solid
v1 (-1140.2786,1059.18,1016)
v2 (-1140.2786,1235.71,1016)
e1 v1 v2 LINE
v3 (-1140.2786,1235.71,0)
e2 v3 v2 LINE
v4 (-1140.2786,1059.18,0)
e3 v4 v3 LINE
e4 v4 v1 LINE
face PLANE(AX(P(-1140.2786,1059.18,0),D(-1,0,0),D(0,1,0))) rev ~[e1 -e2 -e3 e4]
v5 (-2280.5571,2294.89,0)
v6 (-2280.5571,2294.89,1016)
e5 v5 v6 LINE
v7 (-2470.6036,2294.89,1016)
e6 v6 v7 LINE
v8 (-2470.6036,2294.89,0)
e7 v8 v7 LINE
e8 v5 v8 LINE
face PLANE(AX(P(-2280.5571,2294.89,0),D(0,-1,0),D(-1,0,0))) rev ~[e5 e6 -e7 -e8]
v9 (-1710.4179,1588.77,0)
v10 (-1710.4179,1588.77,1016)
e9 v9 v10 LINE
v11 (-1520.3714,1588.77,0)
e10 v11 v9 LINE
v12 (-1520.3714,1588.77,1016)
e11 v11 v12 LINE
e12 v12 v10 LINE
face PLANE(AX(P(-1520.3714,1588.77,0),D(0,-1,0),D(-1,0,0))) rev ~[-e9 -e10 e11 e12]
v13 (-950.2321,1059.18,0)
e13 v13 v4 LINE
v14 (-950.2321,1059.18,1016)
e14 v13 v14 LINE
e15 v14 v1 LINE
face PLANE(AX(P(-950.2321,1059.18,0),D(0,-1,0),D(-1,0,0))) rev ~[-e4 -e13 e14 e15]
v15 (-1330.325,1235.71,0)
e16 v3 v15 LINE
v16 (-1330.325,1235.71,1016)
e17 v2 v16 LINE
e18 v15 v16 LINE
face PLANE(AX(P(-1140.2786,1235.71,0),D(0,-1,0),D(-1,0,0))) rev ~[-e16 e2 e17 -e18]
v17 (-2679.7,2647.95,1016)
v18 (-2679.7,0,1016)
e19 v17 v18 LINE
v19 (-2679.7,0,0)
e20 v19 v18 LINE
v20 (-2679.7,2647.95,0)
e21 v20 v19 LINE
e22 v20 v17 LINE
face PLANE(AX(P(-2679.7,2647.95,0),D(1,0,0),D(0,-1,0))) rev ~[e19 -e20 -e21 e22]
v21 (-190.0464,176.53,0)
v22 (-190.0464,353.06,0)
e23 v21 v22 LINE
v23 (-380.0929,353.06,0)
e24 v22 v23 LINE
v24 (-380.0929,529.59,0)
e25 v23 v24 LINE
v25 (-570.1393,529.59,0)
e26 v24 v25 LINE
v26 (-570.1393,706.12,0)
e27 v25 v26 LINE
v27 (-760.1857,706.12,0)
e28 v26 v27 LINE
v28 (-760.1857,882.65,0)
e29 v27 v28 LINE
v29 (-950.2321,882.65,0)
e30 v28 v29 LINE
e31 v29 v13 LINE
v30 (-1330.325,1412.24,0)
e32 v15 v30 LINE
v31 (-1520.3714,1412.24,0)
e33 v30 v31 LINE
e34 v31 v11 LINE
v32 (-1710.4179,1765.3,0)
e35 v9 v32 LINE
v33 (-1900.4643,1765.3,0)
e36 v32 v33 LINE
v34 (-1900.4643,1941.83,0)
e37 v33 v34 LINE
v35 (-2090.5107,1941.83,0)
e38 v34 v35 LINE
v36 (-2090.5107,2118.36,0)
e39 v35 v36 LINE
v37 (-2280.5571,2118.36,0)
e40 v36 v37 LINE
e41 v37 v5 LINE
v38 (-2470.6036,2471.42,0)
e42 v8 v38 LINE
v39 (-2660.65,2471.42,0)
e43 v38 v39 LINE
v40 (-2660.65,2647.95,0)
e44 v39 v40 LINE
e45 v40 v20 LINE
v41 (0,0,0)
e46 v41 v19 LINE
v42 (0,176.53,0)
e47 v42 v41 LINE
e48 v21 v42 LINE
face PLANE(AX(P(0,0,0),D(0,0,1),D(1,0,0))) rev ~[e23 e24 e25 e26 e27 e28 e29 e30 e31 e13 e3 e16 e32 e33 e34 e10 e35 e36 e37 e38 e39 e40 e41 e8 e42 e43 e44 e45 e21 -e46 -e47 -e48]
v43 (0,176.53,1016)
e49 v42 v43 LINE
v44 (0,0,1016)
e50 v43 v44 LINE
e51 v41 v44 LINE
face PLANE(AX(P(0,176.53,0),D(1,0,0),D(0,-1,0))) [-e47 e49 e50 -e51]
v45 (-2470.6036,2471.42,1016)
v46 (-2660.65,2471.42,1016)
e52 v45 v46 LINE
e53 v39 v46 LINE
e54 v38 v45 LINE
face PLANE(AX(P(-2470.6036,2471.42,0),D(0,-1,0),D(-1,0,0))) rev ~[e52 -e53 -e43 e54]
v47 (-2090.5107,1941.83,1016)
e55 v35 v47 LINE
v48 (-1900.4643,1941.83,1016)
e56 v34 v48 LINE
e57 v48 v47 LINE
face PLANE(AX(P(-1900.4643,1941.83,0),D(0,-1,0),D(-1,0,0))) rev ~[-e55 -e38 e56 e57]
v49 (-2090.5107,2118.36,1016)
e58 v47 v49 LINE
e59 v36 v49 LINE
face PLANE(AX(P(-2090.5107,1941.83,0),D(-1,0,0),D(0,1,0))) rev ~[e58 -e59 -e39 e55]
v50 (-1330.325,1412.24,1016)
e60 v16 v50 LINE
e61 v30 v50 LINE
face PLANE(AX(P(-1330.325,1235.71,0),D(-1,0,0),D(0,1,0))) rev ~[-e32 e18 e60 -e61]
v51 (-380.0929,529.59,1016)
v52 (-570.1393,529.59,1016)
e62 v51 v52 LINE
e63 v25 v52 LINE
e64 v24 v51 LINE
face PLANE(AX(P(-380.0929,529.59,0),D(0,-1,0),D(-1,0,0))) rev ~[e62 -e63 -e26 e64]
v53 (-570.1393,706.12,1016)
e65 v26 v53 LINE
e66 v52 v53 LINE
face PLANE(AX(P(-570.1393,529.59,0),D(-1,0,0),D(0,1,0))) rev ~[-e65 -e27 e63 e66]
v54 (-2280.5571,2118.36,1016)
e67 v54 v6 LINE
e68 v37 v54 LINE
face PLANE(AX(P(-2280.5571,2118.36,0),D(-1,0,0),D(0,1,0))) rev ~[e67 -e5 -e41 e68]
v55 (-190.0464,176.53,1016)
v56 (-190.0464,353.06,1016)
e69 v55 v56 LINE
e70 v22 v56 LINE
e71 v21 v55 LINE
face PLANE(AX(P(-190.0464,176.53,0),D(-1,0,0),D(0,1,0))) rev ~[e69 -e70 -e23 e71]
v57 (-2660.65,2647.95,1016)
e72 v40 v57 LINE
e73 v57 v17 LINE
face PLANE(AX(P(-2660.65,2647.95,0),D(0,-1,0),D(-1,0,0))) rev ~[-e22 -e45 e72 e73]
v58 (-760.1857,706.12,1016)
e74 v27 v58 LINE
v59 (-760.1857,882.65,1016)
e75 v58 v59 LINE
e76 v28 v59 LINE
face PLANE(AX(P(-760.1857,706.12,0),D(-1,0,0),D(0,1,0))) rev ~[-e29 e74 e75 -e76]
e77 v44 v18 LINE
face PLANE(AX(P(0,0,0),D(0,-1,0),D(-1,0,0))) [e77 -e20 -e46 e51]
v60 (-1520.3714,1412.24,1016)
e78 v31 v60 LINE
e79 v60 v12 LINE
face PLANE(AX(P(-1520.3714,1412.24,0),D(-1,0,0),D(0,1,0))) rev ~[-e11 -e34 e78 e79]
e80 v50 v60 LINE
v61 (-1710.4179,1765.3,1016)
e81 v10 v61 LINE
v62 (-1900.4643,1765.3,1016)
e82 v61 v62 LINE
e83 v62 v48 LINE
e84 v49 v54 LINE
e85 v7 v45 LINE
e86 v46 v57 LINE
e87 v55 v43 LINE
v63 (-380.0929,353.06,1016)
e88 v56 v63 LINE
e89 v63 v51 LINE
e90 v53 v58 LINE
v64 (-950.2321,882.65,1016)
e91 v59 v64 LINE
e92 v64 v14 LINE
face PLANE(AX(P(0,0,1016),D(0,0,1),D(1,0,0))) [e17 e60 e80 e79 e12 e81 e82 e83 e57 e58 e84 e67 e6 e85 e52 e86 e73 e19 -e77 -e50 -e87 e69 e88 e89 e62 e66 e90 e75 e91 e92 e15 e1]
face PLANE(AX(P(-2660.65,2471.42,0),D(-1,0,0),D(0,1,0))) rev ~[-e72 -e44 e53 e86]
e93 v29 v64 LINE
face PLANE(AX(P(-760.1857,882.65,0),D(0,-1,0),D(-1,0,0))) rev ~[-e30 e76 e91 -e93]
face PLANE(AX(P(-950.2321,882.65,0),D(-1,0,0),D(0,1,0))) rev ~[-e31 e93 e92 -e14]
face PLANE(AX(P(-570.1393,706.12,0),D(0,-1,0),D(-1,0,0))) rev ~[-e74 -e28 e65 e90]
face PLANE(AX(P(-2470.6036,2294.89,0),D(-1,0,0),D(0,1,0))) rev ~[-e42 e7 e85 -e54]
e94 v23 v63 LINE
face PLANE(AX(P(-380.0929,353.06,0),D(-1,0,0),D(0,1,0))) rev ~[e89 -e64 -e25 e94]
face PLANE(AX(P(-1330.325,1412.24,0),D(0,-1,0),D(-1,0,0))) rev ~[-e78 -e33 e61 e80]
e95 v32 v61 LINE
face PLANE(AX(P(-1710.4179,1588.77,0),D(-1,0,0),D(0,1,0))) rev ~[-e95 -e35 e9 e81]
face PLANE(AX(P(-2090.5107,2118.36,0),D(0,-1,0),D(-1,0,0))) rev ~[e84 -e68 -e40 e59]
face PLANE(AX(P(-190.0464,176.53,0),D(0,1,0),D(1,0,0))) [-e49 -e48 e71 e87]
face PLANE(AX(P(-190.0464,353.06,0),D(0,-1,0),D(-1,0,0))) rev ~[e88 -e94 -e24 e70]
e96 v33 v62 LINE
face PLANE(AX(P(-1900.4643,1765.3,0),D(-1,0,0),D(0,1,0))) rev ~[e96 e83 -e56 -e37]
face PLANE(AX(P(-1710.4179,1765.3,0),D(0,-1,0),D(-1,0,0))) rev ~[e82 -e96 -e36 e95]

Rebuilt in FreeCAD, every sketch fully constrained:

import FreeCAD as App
import Part
import Sketcher
Q = App.Units.Quantity


def add_polygon(sketch, points):
    """Adds a closed chain of lines whose ends are joined by coincident constraints."""
    first, n = sketch.GeometryCount, len(points)
    for a, b in zip(points, points[1:] + points[:1]):
        sketch.addGeometry(Part.LineSegment(App.Vector(*a, 0), App.Vector(*b, 0)), False)
    for i in range(n):
        sketch.addConstraint(Sketcher.Constraint("Coincident", first + i, 2, first + (i + 1) % n, 1))

doc = App.newDocument("Part")
body = doc.addObject("PartDesign::Body", "Body")

# Sketch on XY plane
sketch1 = body.newObject("Sketcher::SketchObject", "Sketch")
sketch1.AttachmentSupport = (doc.getObject("XY_Plane"), [""])
sketch1.MapMode = "FlatFace"
add_polygon(sketch1, [(0, 177), (-190, 177), (-190, 353), (-380, 353), (-380, 530), (-570, 530), (-570, 706), (-760, 706), (-760, 883), (-950, 883), (-950, 1059), (-1140, 1059), (-1140, 1236), (-1330, 1236), (-1330, 1412), (-1520, 1412), (-1520, 1589), (-1710, 1589), (-1710, 1765), (-1900, 1765), (-1900, 1942), (-2091, 1942), (-2091, 2118), (-2281, 2118), (-2281, 2295), (-2471, 2295), (-2471, 2471), (-2661, 2471), (-2661, 2648), (-2680, 2648), (-2680, 0), (0, 0)])  # lines 0-31
sketch1.addConstraint([
    Sketcher.Constraint("Horizontal", 0),
    Sketcher.Constraint("Vertical", 1),
    Sketcher.Constraint("Horizontal", 2),
    Sketcher.Constraint("Vertical", 3),
    Sketcher.Constraint("Horizontal", 4),
    Sketcher.Constraint("Vertical", 5),
    Sketcher.Constraint("Horizontal", 6),
    Sketcher.Constraint("Vertical", 7),
    Sketcher.Constraint("Horizontal", 8),
    Sketcher.Constraint("Vertical", 9),
    Sketcher.Constraint("Horizontal", 10),
    Sketcher.Constraint("Vertical", 11),
    Sketcher.Constraint("Horizontal", 12),
    Sketcher.Constraint("Vertical", 13),
    Sketcher.Constraint("Horizontal", 14),
    Sketcher.Constraint("Vertical", 15),
    Sketcher.Constraint("Horizontal", 16),
    Sketcher.Constraint("Vertical", 17),
    Sketcher.Constraint("Horizontal", 18),
    Sketcher.Constraint("Vertical", 19),
    Sketcher.Constraint("Horizontal", 20),
    Sketcher.Constraint("Vertical", 21),
    Sketcher.Constraint("Horizontal", 22),
    Sketcher.Constraint("Vertical", 23),
    Sketcher.Constraint("Horizontal", 24),
    Sketcher.Constraint("Vertical", 25),
    Sketcher.Constraint("Horizontal", 26),
    Sketcher.Constraint("Vertical", 27),
    Sketcher.Constraint("Horizontal", 28),
    Sketcher.Constraint("Vertical", 29),
    Sketcher.Constraint("Horizontal", 30),
    Sketcher.Constraint("Vertical", 31),
    Sketcher.Constraint("Coincident", 30, 2, -1, 1),
    Sketcher.Constraint("Equal", 0, 2),
    Sketcher.Constraint("Equal", 2, 4),
    Sketcher.Constraint("Equal", 4, 6),
    Sketcher.Constraint("Equal", 6, 8),
    Sketcher.Constraint("Equal", 8, 10),
    Sketcher.Constraint("Equal", 10, 12),
    Sketcher.Constraint("Equal", 12, 14),
    Sketcher.Constraint("Equal", 14, 16),
    Sketcher.Constraint("Equal", 16, 18),
    Sketcher.Constraint("Equal", 18, 20),
    Sketcher.Constraint("Equal", 20, 22),
    Sketcher.Constraint("Equal", 22, 24),
    Sketcher.Constraint("Equal", 24, 26),
    Sketcher.Constraint("Equal", 1, 3),
    Sketcher.Constraint("Equal", 3, 5),
    Sketcher.Constraint("Equal", 5, 7),
    Sketcher.Constraint("Equal", 7, 9),
    Sketcher.Constraint("Equal", 9, 11),
    Sketcher.Constraint("Equal", 11, 13),
    Sketcher.Constraint("Equal", 13, 15),
    Sketcher.Constraint("Equal", 15, 17),
    Sketcher.Constraint("Equal", 17, 19),
    Sketcher.Constraint("Equal", 19, 21),
    Sketcher.Constraint("Equal", 21, 23),
    Sketcher.Constraint("Equal", 23, 25),
    Sketcher.Constraint("Equal", 25, 27),
    Sketcher.Constraint("Equal", 27, 31),
    Sketcher.Constraint("DistanceX", 30, 1, 30, 2, Q("105.5 in")),
    Sketcher.Constraint("DistanceX", 28, 2, 28, 1, Q("0.75 in")),
    Sketcher.Constraint("DistanceY", 29, 2, 29, 1, Q("104.25 in")),
])
pad1 = body.newObject("PartDesign::Pad", "Pad")
pad1.Profile = sketch1
pad1.Length = Q("40 in")

doc.recompute()
